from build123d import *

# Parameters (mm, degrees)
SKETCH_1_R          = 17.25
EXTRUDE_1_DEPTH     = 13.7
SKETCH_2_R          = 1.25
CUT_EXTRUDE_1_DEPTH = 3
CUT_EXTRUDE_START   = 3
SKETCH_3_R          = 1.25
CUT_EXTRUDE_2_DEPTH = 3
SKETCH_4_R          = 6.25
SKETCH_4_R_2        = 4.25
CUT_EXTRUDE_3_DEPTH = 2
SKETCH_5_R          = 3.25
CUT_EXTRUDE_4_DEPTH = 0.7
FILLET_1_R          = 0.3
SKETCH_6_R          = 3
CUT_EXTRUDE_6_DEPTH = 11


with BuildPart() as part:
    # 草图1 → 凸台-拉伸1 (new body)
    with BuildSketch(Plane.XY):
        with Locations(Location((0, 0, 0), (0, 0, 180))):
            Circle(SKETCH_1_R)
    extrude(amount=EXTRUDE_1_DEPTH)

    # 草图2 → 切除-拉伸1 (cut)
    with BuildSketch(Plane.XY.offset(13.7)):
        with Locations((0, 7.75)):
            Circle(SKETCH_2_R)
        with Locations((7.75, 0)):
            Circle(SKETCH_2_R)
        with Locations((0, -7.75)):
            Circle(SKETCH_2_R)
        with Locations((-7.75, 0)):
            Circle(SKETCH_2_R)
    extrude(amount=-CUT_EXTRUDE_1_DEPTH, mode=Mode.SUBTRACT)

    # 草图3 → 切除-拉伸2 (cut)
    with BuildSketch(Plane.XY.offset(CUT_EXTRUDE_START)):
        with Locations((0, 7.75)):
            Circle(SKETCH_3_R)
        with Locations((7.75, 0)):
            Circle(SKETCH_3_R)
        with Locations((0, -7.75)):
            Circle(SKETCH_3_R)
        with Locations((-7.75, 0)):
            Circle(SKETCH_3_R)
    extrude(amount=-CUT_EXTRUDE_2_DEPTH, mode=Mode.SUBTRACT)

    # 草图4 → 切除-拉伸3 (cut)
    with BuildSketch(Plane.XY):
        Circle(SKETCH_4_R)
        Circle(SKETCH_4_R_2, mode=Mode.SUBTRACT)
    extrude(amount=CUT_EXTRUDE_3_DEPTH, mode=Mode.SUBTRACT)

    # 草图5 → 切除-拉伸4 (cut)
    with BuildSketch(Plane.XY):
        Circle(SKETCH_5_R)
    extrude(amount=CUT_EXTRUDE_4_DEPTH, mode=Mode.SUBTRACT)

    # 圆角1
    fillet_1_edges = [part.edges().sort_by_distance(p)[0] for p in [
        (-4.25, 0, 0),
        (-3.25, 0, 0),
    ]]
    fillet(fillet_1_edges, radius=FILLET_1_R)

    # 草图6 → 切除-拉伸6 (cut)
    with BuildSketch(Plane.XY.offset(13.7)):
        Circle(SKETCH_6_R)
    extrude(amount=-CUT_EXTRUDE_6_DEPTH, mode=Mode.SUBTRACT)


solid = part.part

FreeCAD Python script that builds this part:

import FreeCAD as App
import Part
import Sketcher


def edges_at(feature, points):
    """Names of the edges that pass closest to the given points."""
    edges = feature.Shape.Edges
    near = lambda p: min(range(len(edges)), key=lambda i: edges[i].distToShape(Part.Vertex(*p))[0])
    return sorted({f"Edge{near(p) + 1}" for p in points})

doc = App.newDocument("Part")
body = doc.addObject("PartDesign::Body", "Body")

# Sketch on XY plane
sketch1 = body.newObject("Sketcher::SketchObject", "Sketch")
sketch1.AttachmentSupport = (doc.getObject("XY_Plane"), [""])
sketch1.MapMode = "FlatFace"
sketch1.addGeometry(Part.Circle(App.Vector(0, 0, 0), App.Vector(0, 0, 1), 17), False)
sketch1.addConstraint([
    Sketcher.Constraint("Coincident", 0, 3, -1, 1),
    Sketcher.Constraint("Diameter", 0, 34.5),
])
pad1 = body.newObject("PartDesign::Pad", "Pad")
pad1.Profile = sketch1
pad1.Length = 13.7

# Sketch on XY plane
sketch2 = body.newObject("Sketcher::SketchObject", "Sketch001")
sketch2.AttachmentSupport = (doc.getObject("XY_Plane"), [""])
sketch2.MapMode = "FlatFace"
sketch2.AttachmentOffset = App.Placement(App.Vector(0, 0, 13.7), App.Rotation())
sketch2.addGeometry([
    Part.Circle(App.Vector(0, 7.8, 0), App.Vector(0, 0, 1), 1.2),
    Part.Circle(App.Vector(7.8, 0, 0), App.Vector(0, 0, 1), 1.2),
    Part.Circle(App.Vector(0, -7.8, 0), App.Vector(0, 0, 1), 1.2),
    Part.Circle(App.Vector(-7.8, 0, 0), App.Vector(0, 0, 1), 1.2),
], False)
sketch2.addConstraint([
    Sketcher.Constraint("Equal", 0, 1),
    Sketcher.Constraint("Equal", 1, 2),
    Sketcher.Constraint("Equal", 2, 3),
    Sketcher.Constraint("Symmetric", 0, 3, 2, 3, -1, 1),
    Sketcher.Constraint("Symmetric", 1, 3, 3, 3, -1, 1),
    Sketcher.Constraint("PointOnObject", 0, 3, -2),
    Sketcher.Constraint("PointOnObject", 1, 3, -1),
    Sketcher.Constraint("Diameter", 0, 2.5),
    Sketcher.Constraint("DistanceY", 2, 3, 0, 3, 15.5),
    Sketcher.Constraint("DistanceX", 3, 3, 1, 3, 15.5),
])
pocket1 = body.newObject("PartDesign::Pocket", "Pocket")
pocket1.Profile = sketch2
pocket1.Length = 3

# Sketch on XY plane
sketch3 = body.newObject("Sketcher::SketchObject", "Sketch002")
sketch3.AttachmentSupport = (doc.getObject("XY_Plane"), [""])
sketch3.MapMode = "FlatFace"
sketch3.AttachmentOffset = App.Placement(App.Vector(0, 0, 3), App.Rotation())
sketch3.addGeometry([
    Part.Circle(App.Vector(0, 7.8, 0), App.Vector(0, 0, 1), 1.2),
    Part.Circle(App.Vector(7.8, 0, 0), App.Vector(0, 0, 1), 1.2),
    Part.Circle(App.Vector(0, -7.8, 0), App.Vector(0, 0, 1), 1.2),
    Part.Circle(App.Vector(-7.8, 0, 0), App.Vector(0, 0, 1), 1.2),
], False)
sketch3.addConstraint([
    Sketcher.Constraint("Equal", 0, 1),
    Sketcher.Constraint("Equal", 1, 2),
    Sketcher.Constraint("Equal", 2, 3),
    Sketcher.Constraint("Symmetric", 0, 3, 2, 3, -1, 1),
    Sketcher.Constraint("Symmetric", 1, 3, 3, 3, -1, 1),
    Sketcher.Constraint("PointOnObject", 0, 3, -2),
    Sketcher.Constraint("PointOnObject", 1, 3, -1),
    Sketcher.Constraint("Diameter", 0, 2.5),
    Sketcher.Constraint("DistanceY", 2, 3, 0, 3, 15.5),
    Sketcher.Constraint("DistanceX", 3, 3, 1, 3, 15.5),
])
pocket2 = body.newObject("PartDesign::Pocket", "Pocket001")
pocket2.Profile = sketch3
pocket2.Length = 3

# Sketch on XY plane
sketch4 = body.newObject("Sketcher::SketchObject", "Sketch003")
sketch4.AttachmentSupport = (doc.getObject("XY_Plane"), [""])
sketch4.MapMode = "FlatFace"
sketch4.addGeometry([
    Part.Circle(App.Vector(0, 0, 0), App.Vector(0, 0, 1), 6.2),
    Part.Circle(App.Vector(0, 0, 0), App.Vector(0, 0, 1), 4.2),
], False)
sketch4.addConstraint([
    Sketcher.Constraint("Coincident", 0, 3, -1, 1),
    Sketcher.Constraint("Coincident", 1, 3, -1, 1),
    Sketcher.Constraint("Diameter", 0, 12.5),
    Sketcher.Constraint("Diameter", 1, 8.5),
])
pocket3 = body.newObject("PartDesign::Pocket", "Pocket002")
pocket3.Profile = sketch4
pocket3.Length = 2
pocket3.Reversed = True

# Sketch on XY plane
sketch5 = body.newObject("Sketcher::SketchObject", "Sketch004")
sketch5.AttachmentSupport = (doc.getObject("XY_Plane"), [""])
sketch5.MapMode = "FlatFace"
sketch5.addGeometry(Part.Circle(App.Vector(0, 0, 0), App.Vector(0, 0, 1), 3.2), False)
sketch5.addConstraint([
    Sketcher.Constraint("Coincident", 0, 3, -1, 1),
    Sketcher.Constraint("Diameter", 0, 6.5),
])
pocket4 = body.newObject("PartDesign::Pocket", "Pocket003")
pocket4.Profile = sketch5
pocket4.Length = 0.7
pocket4.Reversed = True
doc.recompute()

fillet = body.newObject("PartDesign::Fillet", "Fillet")
fillet.Base = (pocket4, edges_at(pocket4, [(-4.25, 0, 0), (-3.25, 0, 0)]))
fillet.Radius = 0.3

# Sketch on XY plane
sketch6 = body.newObject("Sketcher::SketchObject", "Sketch005")
sketch6.AttachmentSupport = (doc.getObject("XY_Plane"), [""])
sketch6.MapMode = "FlatFace"
sketch6.AttachmentOffset = App.Placement(App.Vector(0, 0, 13.7), App.Rotation())
sketch6.addGeometry(Part.Circle(App.Vector(0, 0, 0), App.Vector(0, 0, 1), 3), False)
sketch6.addConstraint([
    Sketcher.Constraint("Coincident", 0, 3, -1, 1),
    Sketcher.Constraint("Diameter", 0, 6.0),
])
pocket5 = body.newObject("PartDesign::Pocket", "Pocket004")
pocket5.Profile = sketch6
pocket5.Length = 11

doc.recompute()
